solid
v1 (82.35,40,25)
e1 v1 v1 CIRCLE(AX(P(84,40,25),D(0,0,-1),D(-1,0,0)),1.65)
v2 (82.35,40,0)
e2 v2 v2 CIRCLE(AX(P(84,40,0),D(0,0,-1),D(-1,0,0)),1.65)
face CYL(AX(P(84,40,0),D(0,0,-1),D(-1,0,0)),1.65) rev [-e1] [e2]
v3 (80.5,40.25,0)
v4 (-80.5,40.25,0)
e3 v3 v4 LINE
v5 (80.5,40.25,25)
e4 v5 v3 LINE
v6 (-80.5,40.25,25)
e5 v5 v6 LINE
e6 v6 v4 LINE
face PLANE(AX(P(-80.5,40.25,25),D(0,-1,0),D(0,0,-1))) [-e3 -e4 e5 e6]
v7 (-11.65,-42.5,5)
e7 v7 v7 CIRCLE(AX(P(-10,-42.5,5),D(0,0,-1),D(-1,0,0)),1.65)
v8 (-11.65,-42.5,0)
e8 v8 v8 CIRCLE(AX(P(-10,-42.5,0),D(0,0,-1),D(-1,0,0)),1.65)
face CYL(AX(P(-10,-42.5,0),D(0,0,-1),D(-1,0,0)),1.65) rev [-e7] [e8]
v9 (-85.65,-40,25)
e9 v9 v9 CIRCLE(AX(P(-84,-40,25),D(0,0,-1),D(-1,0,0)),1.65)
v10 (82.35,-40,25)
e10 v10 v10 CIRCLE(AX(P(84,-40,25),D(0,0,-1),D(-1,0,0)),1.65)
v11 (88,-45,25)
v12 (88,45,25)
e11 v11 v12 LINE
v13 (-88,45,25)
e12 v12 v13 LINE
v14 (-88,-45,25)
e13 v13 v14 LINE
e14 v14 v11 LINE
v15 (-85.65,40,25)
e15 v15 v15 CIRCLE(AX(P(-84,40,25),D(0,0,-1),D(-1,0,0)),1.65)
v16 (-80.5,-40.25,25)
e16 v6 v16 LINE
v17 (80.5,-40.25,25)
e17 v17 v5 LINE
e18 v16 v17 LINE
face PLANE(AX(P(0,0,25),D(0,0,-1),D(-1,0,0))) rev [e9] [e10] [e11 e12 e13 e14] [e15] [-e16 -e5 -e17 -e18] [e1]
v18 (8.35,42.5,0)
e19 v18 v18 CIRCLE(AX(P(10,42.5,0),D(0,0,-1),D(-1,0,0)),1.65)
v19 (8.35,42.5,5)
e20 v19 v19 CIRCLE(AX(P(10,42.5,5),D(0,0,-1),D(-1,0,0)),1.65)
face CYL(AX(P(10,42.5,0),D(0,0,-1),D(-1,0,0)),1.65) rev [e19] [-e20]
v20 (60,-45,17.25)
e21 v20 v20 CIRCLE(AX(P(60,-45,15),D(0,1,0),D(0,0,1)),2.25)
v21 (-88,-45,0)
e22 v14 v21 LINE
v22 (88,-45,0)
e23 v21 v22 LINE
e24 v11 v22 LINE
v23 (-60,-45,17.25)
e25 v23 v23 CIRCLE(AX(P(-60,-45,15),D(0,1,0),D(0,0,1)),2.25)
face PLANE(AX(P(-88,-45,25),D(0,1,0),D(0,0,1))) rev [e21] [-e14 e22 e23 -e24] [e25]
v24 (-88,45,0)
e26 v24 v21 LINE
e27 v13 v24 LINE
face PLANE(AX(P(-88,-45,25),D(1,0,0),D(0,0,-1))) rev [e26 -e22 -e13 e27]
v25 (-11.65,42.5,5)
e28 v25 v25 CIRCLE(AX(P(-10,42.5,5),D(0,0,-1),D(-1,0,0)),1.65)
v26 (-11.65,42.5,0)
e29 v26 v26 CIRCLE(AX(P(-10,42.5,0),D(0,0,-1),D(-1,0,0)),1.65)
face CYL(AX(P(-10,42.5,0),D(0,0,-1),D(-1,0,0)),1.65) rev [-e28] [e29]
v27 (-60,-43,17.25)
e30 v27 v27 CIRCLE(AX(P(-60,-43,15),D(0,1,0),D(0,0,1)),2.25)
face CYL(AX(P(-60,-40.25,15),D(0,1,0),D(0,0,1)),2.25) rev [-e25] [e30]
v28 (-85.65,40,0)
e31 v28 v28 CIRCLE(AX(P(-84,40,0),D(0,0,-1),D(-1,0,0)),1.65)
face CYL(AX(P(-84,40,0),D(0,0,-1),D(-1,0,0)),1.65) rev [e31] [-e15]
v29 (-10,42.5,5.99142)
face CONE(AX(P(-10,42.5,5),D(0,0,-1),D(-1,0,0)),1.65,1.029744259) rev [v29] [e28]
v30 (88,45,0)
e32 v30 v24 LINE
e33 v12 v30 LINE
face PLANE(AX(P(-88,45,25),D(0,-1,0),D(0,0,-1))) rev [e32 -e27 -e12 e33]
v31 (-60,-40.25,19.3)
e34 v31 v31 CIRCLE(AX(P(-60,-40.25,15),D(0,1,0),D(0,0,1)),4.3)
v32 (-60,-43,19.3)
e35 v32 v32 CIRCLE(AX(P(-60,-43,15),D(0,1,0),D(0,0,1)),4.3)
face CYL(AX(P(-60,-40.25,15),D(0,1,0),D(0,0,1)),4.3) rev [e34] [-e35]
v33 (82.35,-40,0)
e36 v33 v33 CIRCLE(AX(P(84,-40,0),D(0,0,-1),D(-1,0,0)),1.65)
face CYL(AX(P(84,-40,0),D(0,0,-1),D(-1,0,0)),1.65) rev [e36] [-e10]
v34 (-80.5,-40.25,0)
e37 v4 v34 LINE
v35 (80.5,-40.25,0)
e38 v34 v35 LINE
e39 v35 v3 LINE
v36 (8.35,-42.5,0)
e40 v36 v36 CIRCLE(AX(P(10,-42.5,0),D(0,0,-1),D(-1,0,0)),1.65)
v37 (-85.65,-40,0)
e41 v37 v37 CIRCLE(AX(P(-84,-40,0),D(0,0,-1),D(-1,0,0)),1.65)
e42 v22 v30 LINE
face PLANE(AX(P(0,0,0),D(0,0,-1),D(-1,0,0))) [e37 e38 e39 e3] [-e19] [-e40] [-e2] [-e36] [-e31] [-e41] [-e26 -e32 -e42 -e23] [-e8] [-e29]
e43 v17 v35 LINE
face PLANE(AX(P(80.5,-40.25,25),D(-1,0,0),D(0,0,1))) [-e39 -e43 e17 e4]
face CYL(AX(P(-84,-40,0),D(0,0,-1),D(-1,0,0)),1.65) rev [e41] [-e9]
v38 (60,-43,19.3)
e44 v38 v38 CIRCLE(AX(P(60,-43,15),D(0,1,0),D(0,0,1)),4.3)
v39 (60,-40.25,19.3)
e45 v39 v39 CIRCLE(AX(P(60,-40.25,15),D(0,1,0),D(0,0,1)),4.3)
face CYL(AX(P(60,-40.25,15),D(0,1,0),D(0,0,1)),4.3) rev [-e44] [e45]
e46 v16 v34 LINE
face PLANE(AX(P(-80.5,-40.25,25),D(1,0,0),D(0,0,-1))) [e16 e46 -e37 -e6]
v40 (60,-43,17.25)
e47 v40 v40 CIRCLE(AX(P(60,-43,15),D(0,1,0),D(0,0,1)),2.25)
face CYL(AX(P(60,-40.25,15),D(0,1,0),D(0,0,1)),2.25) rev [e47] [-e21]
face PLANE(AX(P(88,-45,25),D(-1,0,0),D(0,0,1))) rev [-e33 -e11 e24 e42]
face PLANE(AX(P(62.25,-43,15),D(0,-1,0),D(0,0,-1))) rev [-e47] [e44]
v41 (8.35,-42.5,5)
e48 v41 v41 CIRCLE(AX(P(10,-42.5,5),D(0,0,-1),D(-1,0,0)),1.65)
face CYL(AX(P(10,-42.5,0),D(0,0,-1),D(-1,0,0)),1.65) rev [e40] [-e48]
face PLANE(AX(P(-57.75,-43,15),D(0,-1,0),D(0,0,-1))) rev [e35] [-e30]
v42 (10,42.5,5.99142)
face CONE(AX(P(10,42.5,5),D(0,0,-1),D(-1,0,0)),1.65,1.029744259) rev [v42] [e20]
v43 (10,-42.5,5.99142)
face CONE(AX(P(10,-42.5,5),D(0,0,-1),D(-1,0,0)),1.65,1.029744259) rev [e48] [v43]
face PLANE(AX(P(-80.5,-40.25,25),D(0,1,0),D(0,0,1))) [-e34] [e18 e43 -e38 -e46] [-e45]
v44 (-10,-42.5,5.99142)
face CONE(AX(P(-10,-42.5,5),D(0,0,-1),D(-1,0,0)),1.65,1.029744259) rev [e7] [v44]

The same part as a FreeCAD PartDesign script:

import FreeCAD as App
import Part
import Sketcher
from FreeCAD import Vector
Q = App.Units.Quantity

doc = App.newDocument("Part")
body = doc.addObject("PartDesign::Body", "Body")

# Sketch on XY plane
sketch1 = doc.addObject("Sketcher::SketchObject", "Sketch")
body.addObject(sketch1)
sketch1.AttachmentSupport = (doc.XY_Plane, [""])
sketch1.MapMode = "FlatFace"
sketch1.addGeometry([
    Part.LineSegment(Vector(-88, 45, 0), Vector(-88, -45, 0)),  # 0
    Part.LineSegment(Vector(-88, -45, 0), Vector(88, -45, 0)),  # 1
    Part.LineSegment(Vector(88, -45, 0), Vector(88, 45, 0)),  # 2
    Part.LineSegment(Vector(88, 45, 0), Vector(-88, 45, 0)),  # 3
    Part.LineSegment(Vector(80, -40, 0), Vector(-80, -40, 0)),  # 4
    Part.LineSegment(Vector(-80, -40, 0), Vector(-80, 40, 0)),  # 5
    Part.LineSegment(Vector(-80, 40, 0), Vector(80, 40, 0)),  # 6
    Part.LineSegment(Vector(80, 40, 0), Vector(80, -40, 0)),  # 7
], False)
sketch1.addConstraint([
    Sketcher.Constraint("Coincident", 0, 2, 1, 1),
    Sketcher.Constraint("Coincident", 1, 2, 2, 1),
    Sketcher.Constraint("Coincident", 2, 2, 3, 1),
    Sketcher.Constraint("Coincident", 3, 2, 0, 1),
    Sketcher.Constraint("Coincident", 4, 2, 5, 1),
    Sketcher.Constraint("Coincident", 5, 2, 6, 1),
    Sketcher.Constraint("Coincident", 6, 2, 7, 1),
    Sketcher.Constraint("Coincident", 7, 2, 4, 1),
    Sketcher.Constraint("Vertical", 0),
    Sketcher.Constraint("Horizontal", 1),
    Sketcher.Constraint("Vertical", 2),
    Sketcher.Constraint("Horizontal", 3),
    Sketcher.Constraint("Horizontal", 4),
    Sketcher.Constraint("Vertical", 5),
    Sketcher.Constraint("Horizontal", 6),
    Sketcher.Constraint("Vertical", 7),
    Sketcher.Constraint("Symmetric", 0, 2, 2, 2, -1, 1),
    Sketcher.Constraint("Symmetric", 4, 2, 6, 2, -1, 1),
    Sketcher.Constraint("DistanceX", 1, 1, 1, 2, Q("176 mm")),
    Sketcher.Constraint("DistanceX", 4, 2, 4, 1, Q("161 mm")),
    Sketcher.Constraint("DistanceY", 0, 2, 0, 1, Q("90 mm")),
    Sketcher.Constraint("DistanceY", 5, 1, 5, 2, Q("80.5 mm")),
])
pad1 = doc.addObject("PartDesign::Pad", "Pad")
body.addObject(pad1)
pad1.Profile = sketch1
pad1.Length = 25

# Sketch on XY plane
sketch2 = doc.addObject("Sketcher::SketchObject", "Sketch001")
body.addObject(sketch2)
sketch2.AttachmentSupport = (doc.XY_Plane, [""])
sketch2.MapMode = "FlatFace"
sketch2.addGeometry([
    Part.Circle(Vector(0, 0, 0), Vector(0, 0, 1), 1.6),  # 0
    Part.Circle(Vector(-84, 40, 0), Vector(0, 0, 1), 1.6),  # 1
    Part.Circle(Vector(84, -40, 0), Vector(0, 0, 1), 1.6),  # 2
    Part.Circle(Vector(84, 40, 0), Vector(0, 0, 1), 1.6),  # 3
    Part.Circle(Vector(-84, -40, 0), Vector(0, 0, 1), 1.6),  # 4
], False)
sketch2.addConstraint([
    Sketcher.Constraint("Coincident", 0, 3, -1, 1),
    Sketcher.Constraint("Equal", 0, 1),
    Sketcher.Constraint("Equal", 1, 2),
    Sketcher.Constraint("Equal", 2, 3),
    Sketcher.Constraint("Equal", 3, 4),
    Sketcher.Constraint("Symmetric", 1, 3, 2, 3, -1, 1),
    Sketcher.Constraint("Symmetric", 3, 3, 4, 3, -1, 1),
    Sketcher.Constraint("Symmetric", 1, 3, 3, 3, -2),
    Sketcher.Constraint("Diameter", 0, Q("3.3 mm")),
    Sketcher.Constraint("DistanceX", 1, 3, -1, 1, Q("84 mm")),
    Sketcher.Constraint("DistanceY", -1, 1, 1, 3, Q("40 mm")),
])
doc.recompute()
hole = doc.addObject("PartDesign::Hole", "Hole")
body.addObject(hole)
hole.Profile = sketch2
hole.ThreadType = "None"
hole.Diameter = 3.3
hole.DepthType = "ThroughAll"
hole.Reversed = True

# Sketch on XZ plane
sketch3 = doc.addObject("Sketcher::SketchObject", "Sketch002")
body.addObject(sketch3)
sketch3.AttachmentSupport = (doc.XZ_Plane, [""])
sketch3.MapMode = "FlatFace"
sketch3.AttachmentOffset = App.Placement(Vector(0, 0, 40.25), App.Rotation())
sketch3.addGeometry([
    Part.Circle(Vector(-60, 15, 0), Vector(0, 0, 1), 2.2),
    Part.Circle(Vector(60, 15, 0), Vector(0, 0, 1), 2.2),
], False)
sketch3.addConstraint([
    Sketcher.Constraint("Equal", 0, 1),
    Sketcher.Constraint("Symmetric", 0, 3, 1, 3, -2),
    Sketcher.Constraint("Diameter", 0, Q("4.5 mm")),
    Sketcher.Constraint("DistanceX", 0, 3, -1, 1, Q("60 mm")),
    Sketcher.Constraint("DistanceY", -1, 1, 0, 3, Q("15 mm")),
])
doc.recompute()
hole2 = doc.addObject("PartDesign::Hole", "Hole001")
body.addObject(hole2)
hole2.Profile = sketch3
hole2.ThreadType = "None"
hole2.Diameter = 4.5
hole2.DepthType = "Dimension"
hole2.Depth = 4.75
hole2.DrillPoint = "Flat"
hole2.HoleCutType = "Counterbore"
hole2.HoleCutDiameter = 8.6
hole2.HoleCutDepth = 2.75
hole2.Reversed = True

# Sketch on XY plane
sketch4 = doc.addObject("Sketcher::SketchObject", "Sketch003")
body.addObject(sketch4)
sketch4.AttachmentSupport = (doc.XY_Plane, [""])
sketch4.MapMode = "FlatFace"
sketch4.addGeometry([
    Part.Circle(Vector(0, 0, 0), Vector(0, 0, 1), 1.6),  # 0
    Part.Circle(Vector(-10, 42.5, 0), Vector(0, 0, 1), 1.6),  # 1
    Part.Circle(Vector(10, -42.5, 0), Vector(0, 0, 1), 1.6),  # 2
    Part.Circle(Vector(10, 42.5, 0), Vector(0, 0, 1), 1.6),  # 3
    Part.Circle(Vector(-10, -42.5, 0), Vector(0, 0, 1), 1.6),  # 4
], False)
sketch4.addConstraint([
    Sketcher.Constraint("Coincident", 0, 3, -1, 1),
    Sketcher.Constraint("Equal", 0, 1),
    Sketcher.Constraint("Equal", 1, 2),
    Sketcher.Constraint("Equal", 2, 3),
    Sketcher.Constraint("Equal", 3, 4),
    Sketcher.Constraint("Symmetric", 1, 3, 2, 3, -1, 1),
    Sketcher.Constraint("Symmetric", 3, 3, 4, 3, -1, 1),
    Sketcher.Constraint("Symmetric", 1, 3, 3, 3, -2),
    Sketcher.Constraint("Diameter", 0, Q("3.3 mm")),
    Sketcher.Constraint("DistanceX", 1, 3, -1, 1, Q("10 mm")),
    Sketcher.Constraint("DistanceY", 2, 3, 1, 3, Q("85 mm")),
])
doc.recompute()
hole3 = doc.addObject("PartDesign::Hole", "Hole002")
body.addObject(hole3)
hole3.Profile = sketch4
hole3.ThreadType = "None"
hole3.Diameter = 3.3
hole3.DepthType = "Dimension"
hole3.Depth = 5
hole3.DrillPoint = "Angled"
hole3.DrillPointAngle = 118
hole3.Reversed = True

doc.recompute()
